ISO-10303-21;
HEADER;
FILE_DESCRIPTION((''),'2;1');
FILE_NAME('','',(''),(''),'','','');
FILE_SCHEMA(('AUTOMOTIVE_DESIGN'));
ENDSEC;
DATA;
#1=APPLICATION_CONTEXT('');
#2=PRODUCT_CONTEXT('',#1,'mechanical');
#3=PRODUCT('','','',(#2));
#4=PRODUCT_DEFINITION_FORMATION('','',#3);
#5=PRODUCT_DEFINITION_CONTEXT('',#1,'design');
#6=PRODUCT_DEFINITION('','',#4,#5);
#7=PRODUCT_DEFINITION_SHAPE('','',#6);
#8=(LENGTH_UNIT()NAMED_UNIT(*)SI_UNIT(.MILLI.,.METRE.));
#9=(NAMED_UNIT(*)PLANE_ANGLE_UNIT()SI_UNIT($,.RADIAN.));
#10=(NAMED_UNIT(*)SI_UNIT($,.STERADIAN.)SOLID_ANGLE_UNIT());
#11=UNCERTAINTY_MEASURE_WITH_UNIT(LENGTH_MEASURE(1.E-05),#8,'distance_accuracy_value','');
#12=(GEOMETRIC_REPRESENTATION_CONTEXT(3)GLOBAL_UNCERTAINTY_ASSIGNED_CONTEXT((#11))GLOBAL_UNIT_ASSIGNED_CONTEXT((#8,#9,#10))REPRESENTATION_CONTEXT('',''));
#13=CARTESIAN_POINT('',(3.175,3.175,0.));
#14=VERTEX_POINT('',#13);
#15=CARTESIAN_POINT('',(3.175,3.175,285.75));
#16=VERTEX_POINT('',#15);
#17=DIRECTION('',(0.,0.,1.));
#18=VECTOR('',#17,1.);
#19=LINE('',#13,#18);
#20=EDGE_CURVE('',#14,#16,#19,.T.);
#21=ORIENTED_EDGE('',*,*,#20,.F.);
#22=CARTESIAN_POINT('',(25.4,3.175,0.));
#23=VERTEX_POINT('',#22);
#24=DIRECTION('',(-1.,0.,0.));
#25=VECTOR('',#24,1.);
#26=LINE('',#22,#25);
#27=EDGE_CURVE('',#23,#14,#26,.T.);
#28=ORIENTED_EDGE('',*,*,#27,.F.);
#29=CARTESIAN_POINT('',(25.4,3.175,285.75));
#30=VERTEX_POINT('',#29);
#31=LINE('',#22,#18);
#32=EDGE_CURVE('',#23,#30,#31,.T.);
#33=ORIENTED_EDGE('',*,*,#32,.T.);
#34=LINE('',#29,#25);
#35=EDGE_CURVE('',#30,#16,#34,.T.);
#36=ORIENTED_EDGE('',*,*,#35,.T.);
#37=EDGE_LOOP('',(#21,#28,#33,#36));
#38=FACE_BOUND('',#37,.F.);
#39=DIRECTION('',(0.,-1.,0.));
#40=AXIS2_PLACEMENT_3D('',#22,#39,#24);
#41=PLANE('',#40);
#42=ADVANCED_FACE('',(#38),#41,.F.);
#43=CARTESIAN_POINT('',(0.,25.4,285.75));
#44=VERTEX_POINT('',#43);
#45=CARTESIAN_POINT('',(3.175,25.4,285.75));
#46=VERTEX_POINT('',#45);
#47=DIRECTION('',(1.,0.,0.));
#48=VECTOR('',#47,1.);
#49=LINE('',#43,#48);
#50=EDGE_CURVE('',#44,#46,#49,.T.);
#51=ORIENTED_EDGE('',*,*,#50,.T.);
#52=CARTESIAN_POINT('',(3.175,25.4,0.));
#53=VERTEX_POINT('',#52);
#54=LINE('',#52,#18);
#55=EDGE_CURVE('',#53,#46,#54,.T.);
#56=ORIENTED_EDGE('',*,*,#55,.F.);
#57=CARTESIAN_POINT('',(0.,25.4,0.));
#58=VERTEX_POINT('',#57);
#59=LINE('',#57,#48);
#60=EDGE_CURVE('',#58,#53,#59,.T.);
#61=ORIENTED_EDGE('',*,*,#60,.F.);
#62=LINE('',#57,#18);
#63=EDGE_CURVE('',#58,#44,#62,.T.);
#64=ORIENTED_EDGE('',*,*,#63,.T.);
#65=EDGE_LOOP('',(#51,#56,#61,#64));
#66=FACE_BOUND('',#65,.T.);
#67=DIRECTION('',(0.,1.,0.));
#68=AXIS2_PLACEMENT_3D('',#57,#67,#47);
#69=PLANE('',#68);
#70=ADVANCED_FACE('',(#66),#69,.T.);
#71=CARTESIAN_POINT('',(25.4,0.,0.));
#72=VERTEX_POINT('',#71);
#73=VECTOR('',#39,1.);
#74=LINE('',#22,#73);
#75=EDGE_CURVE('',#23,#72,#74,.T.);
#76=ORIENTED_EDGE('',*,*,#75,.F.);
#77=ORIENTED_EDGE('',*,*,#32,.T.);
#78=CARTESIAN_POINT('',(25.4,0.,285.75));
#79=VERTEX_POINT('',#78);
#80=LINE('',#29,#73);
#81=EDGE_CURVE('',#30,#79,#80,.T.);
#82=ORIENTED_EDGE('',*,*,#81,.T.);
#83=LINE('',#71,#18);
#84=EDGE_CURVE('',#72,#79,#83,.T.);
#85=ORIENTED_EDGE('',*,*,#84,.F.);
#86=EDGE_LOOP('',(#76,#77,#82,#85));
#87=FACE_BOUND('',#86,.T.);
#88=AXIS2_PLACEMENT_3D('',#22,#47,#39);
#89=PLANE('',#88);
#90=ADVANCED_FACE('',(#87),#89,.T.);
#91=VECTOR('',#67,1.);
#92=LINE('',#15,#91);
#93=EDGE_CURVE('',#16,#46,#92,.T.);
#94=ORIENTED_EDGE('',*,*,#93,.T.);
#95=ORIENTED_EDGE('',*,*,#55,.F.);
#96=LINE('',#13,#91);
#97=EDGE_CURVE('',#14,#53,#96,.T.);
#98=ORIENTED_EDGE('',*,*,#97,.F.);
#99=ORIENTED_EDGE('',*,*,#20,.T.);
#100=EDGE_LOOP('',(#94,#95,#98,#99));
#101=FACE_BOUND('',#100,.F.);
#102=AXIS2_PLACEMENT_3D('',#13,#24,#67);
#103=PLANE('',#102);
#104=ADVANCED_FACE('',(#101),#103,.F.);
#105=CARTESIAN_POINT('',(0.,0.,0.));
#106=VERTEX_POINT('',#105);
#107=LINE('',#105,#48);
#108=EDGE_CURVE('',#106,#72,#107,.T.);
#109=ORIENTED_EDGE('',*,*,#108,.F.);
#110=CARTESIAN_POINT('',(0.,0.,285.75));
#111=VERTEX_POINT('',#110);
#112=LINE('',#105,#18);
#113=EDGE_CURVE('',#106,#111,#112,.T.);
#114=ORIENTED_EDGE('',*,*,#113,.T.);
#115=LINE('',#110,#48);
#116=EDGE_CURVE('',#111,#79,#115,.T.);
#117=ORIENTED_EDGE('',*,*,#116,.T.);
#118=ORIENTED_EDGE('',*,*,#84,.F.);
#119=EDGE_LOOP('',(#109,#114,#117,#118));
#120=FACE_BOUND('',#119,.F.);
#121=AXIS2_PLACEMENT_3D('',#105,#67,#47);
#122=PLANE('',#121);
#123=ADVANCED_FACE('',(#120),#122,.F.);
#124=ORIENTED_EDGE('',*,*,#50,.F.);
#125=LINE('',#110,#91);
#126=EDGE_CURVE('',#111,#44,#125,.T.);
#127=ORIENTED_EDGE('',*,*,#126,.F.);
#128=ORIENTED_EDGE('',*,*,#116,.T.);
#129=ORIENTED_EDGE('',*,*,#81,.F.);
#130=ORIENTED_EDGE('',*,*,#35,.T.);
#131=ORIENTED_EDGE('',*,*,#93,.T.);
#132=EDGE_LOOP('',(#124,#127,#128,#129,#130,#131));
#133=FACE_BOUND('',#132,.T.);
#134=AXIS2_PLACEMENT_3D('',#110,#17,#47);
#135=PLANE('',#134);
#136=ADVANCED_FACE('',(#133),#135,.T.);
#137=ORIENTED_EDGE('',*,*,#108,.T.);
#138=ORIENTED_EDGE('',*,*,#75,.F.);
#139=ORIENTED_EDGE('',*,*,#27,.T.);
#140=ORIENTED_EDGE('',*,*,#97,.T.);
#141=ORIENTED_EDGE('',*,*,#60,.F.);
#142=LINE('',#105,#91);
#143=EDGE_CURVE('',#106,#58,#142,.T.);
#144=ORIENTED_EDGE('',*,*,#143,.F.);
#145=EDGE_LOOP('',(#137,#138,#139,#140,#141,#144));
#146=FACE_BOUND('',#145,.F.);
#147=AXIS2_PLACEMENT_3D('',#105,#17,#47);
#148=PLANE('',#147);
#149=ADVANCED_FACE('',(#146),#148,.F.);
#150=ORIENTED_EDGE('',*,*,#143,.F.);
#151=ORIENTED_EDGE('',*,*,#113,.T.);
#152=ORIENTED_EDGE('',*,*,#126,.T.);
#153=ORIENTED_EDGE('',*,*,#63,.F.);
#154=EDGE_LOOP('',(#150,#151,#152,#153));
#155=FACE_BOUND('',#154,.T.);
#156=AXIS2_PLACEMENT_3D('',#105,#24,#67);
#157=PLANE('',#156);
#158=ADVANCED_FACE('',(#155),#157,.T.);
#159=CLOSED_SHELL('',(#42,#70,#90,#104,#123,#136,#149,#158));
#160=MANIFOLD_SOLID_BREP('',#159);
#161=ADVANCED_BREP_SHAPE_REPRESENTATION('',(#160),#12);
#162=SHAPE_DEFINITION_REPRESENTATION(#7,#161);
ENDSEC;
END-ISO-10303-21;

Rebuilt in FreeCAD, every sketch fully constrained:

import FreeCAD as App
import Part
import Sketcher
from FreeCAD import Vector
Q = App.Units.Quantity

doc = App.newDocument("Part")
body = doc.addObject("PartDesign::Body", "Body")

sketch1 = body.newObject("Sketcher::SketchObject", "Sketch")
sketch1.AttachmentSupport = (doc.getObject("XY_Plane"), [""])
sketch1.MapMode = "FlatFace"
sketch1.addGeometry([
    Part.LineSegment(Vector(0, 25.4, 0), Vector(0, 0, 0)),
    Part.LineSegment(Vector(0, 0, 0), Vector(25.4, 0, 0)),
    Part.LineSegment(Vector(25.4, 0, 0), Vector(25.4, 3.2, 0)),
    Part.LineSegment(Vector(25.4, 3.2, 0), Vector(3.2, 3.2, 0)),
    Part.LineSegment(Vector(3.2, 3.2, 0), Vector(3.2, 25.4, 0)),
    Part.LineSegment(Vector(3.2, 25.4, 0), Vector(0, 25.4, 0)),
], False)
sketch1.addConstraint([
    Sketcher.Constraint("Coincident", 0, 2, 1, 1),
    Sketcher.Constraint("Coincident", 1, 2, 2, 1),
    Sketcher.Constraint("Coincident", 2, 2, 3, 1),
    Sketcher.Constraint("Coincident", 3, 2, 4, 1),
    Sketcher.Constraint("Coincident", 4, 2, 5, 1),
    Sketcher.Constraint("Coincident", 5, 2, 0, 1),
    Sketcher.Constraint("Vertical", 0),
    Sketcher.Constraint("Horizontal", 1),
    Sketcher.Constraint("Vertical", 2),
    Sketcher.Constraint("Horizontal", 3),
    Sketcher.Constraint("Vertical", 4),
    Sketcher.Constraint("Horizontal", 5),
    Sketcher.Constraint("Coincident", 0, 2, -1, 1),
    Sketcher.Constraint("Equal", 1, 0),
    Sketcher.Constraint("Equal", 5, 2),
    Sketcher.Constraint("DistanceX", 1, 1, 1, 2, Q("1 in")),
    Sketcher.Constraint("DistanceX", 5, 2, 5, 1, Q("0.125 in")),
])
pad1 = body.newObject("PartDesign::Pad", "Pad")
pad1.Profile = sketch1
pad1.Length = Q("11.25 in")

doc.recompute()
